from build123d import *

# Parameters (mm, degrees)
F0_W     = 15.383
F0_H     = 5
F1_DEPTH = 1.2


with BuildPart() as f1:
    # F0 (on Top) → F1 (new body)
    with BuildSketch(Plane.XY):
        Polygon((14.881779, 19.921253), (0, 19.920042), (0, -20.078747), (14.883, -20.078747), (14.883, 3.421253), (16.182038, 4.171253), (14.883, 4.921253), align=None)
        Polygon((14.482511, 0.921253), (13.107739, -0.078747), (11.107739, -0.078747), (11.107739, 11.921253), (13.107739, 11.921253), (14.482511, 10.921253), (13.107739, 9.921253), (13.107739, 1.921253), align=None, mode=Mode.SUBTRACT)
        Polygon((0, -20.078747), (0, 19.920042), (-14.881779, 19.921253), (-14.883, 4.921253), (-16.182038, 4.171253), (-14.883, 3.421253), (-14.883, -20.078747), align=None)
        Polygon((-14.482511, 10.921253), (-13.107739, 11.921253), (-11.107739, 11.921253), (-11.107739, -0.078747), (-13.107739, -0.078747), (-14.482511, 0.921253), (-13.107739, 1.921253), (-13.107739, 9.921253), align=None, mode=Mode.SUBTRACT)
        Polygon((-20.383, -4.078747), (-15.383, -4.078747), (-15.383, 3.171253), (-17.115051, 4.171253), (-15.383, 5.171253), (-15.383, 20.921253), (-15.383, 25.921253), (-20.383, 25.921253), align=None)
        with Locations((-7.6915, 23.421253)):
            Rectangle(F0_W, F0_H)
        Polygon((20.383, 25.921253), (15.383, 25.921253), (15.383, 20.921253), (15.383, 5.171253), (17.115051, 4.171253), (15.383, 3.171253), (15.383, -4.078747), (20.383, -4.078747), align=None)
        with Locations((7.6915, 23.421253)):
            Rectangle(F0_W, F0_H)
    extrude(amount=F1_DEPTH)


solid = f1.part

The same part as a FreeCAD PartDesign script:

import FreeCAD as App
import Part
import Sketcher
from FreeCAD import Vector
Q = App.Units.Quantity


def add_polygon(sketch, points):
    """Adds a closed chain of lines whose ends are joined by coincident constraints."""
    first, n = sketch.GeometryCount, len(points)
    for a, b in zip(points, points[1:] + points[:1]):
        sketch.addGeometry(Part.LineSegment(App.Vector(*a, 0), App.Vector(*b, 0)), False)
    for i in range(n):
        sketch.addConstraint(Sketcher.Constraint("Coincident", first + i, 2, first + (i + 1) % n, 1))

doc = App.newDocument("Part")
body = doc.addObject("PartDesign::Body", "Body")
body.AllowCompound = True

sketch1 = body.newObject("Sketcher::SketchObject", "Sketch")
sketch1.AttachmentSupport = (doc.getObject("XY_Plane"), [""])
sketch1.MapMode = "FlatFace"
add_polygon(sketch1, [(14.9, 19.9), (0, 19.9), (-14.9, 19.9), (-14.9, 4.9), (-16.2, 4.2), (-14.9, 3.4), (-14.9, -20.1), (14.9, -20.1), (14.9, 3.4), (16.2, 4.2), (14.9, 4.9)])
add_polygon(sketch1, [(-13.1, 9.9), (-14.5, 10.9), (-13.1, 11.9), (-11.1, 11.9), (-11.1, -0.1), (-13.1, -0.1), (-14.5, 0.9), (-13.1, 1.9)])
add_polygon(sketch1, [(13.1, 1.9), (14.5, 0.9), (13.1, -0.1), (11.1, -0.1), (11.1, 11.9), (13.1, 11.9), (14.5, 10.9), (13.1, 9.9)])
add_polygon(sketch1, [(-20.4, -4.1), (-15.4, -4.1), (-15.4, 3.2), (-17.1, 4.2), (-15.4, 5.2), (-15.4, 20.9), (15.4, 20.9), (15.4, 5.2), (17.1, 4.2), (15.4, 3.2), (15.4, -4.1), (20.4, -4.1), (20.4, 25.9), (-20.4, 25.9)])
sketch1.addConstraint(Sketcher.Constraint("Vertical", 5))
sketch1.addConstraint(Sketcher.Constraint("Horizontal", 6))
sketch1.addConstraint(Sketcher.Constraint("Vertical", 7))
sketch1.addConstraint(Sketcher.Constraint("Horizontal", 13))
sketch1.addConstraint(Sketcher.Constraint("Vertical", 14))
sketch1.addConstraint(Sketcher.Constraint("Horizontal", 15))
sketch1.addConstraint(Sketcher.Constraint("Vertical", 18))
sketch1.addConstraint(Sketcher.Constraint("Horizontal", 21))
sketch1.addConstraint(Sketcher.Constraint("Vertical", 22))
sketch1.addConstraint(Sketcher.Constraint("Horizontal", 23))
sketch1.addConstraint(Sketcher.Constraint("Vertical", 26))
sketch1.addConstraint(Sketcher.Constraint("Horizontal", 27))
sketch1.addConstraint(Sketcher.Constraint("Vertical", 28))
sketch1.addConstraint(Sketcher.Constraint("Vertical", 31))
sketch1.addConstraint(Sketcher.Constraint("Horizontal", 32))
sketch1.addConstraint(Sketcher.Constraint("Vertical", 33))
sketch1.addConstraint(Sketcher.Constraint("Vertical", 36))
sketch1.addConstraint(Sketcher.Constraint("Horizontal", 37))
sketch1.addConstraint(Sketcher.Constraint("Vertical", 38))
sketch1.addConstraint(Sketcher.Constraint("Horizontal", 39))
sketch1.addConstraint(Sketcher.Constraint("Vertical", 40))
sketch1.addConstraint(Sketcher.Constraint("Symmetric", 4, 2, 7, 2, -2))
sketch1.addConstraint(Sketcher.Constraint("Symmetric", 3, 2, 8, 2, -2))
sketch1.addConstraint(Sketcher.Constraint("Symmetric", 2, 2, 9, 2, -2))
sketch1.addConstraint(Sketcher.Constraint("Symmetric", 1, 2, 10, 2, -2))
sketch1.addConstraint(Sketcher.Constraint("Symmetric", 16, 2, 19, 2, -2))
sketch1.addConstraint(Sketcher.Constraint("Symmetric", 15, 2, 20, 2, -2))
sketch1.addConstraint(Sketcher.Constraint("Symmetric", 13, 2, 22, 2, -2))
sketch1.addConstraint(Sketcher.Constraint("Symmetric", 11, 2, 24, 2, -2))
sketch1.addConstraint(Sketcher.Constraint("Symmetric", 18, 2, 25, 2, -2))
sketch1.addConstraint(Sketcher.Constraint("Symmetric", 30, 2, 33, 2, -2))
sketch1.addConstraint(Sketcher.Constraint("Symmetric", 29, 2, 34, 2, -2))
sketch1.addConstraint(Sketcher.Constraint("Symmetric", 28, 2, 35, 2, -2))
sketch1.addConstraint(Sketcher.Constraint("Symmetric", 37, 2, 40, 2, -2))
sketch1.addConstraint(Sketcher.Constraint("PointOnObject", 0, 2, -2))
sketch1.addConstraint(Sketcher.Constraint("Perpendicular", 1, 2))
sketch1.addConstraint(Sketcher.Constraint("Parallel", 3, 8))
sketch1.addConstraint(Sketcher.Constraint("Parallel", 11, 16))
sketch1.addConstraint(Sketcher.Constraint("Parallel", 12, 17))
sketch1.addConstraint(Sketcher.Constraint("Parallel", 16, 19))
sketch1.addConstraint(Sketcher.Constraint("Parallel", 17, 20))
sketch1.addConstraint(Sketcher.Constraint("Parallel", 19, 24))
sketch1.addConstraint(Sketcher.Constraint("Parallel", 9, 29))
sketch1.addConstraint(Sketcher.Constraint("Parallel", 8, 30))
sketch1.addConstraint(Sketcher.Constraint("Horizontal", 8, 2, 29, 2))
sketch1.addConstraint(Sketcher.Constraint("Vertical", 2, 2, 4, 2))
sketch1.addConstraint(Sketcher.Constraint("Vertical", 12, 2, 15, 2))
sketch1.addConstraint(Sketcher.Constraint("Vertical", 11, 2, 16, 2))
sketch1.addConstraint(Sketcher.Constraint("Vertical", 15, 2, 17, 2))
sketch1.addConstraint(Sketcher.Constraint("Vertical", 28, 2, 30, 2))
sketch1.addConstraint(Sketcher.Constraint("DistanceX", 13, 1, 13, 2, 2.0))
sketch1.addConstraint(Sketcher.Constraint("DistanceX", 27, 1, 27, 2, 5.0))
sketch1.addConstraint(Sketcher.Constraint("DistanceY", 14, 2, 14, 1, 12.0))
sketch1.addConstraint(Sketcher.Constraint("DistanceY", 18, 1, 18, 2, 8.0))
sketch1.addConstraint(Sketcher.Constraint("DistanceY", 38, 1, 38, 2, 30.0))
sketch1.addConstraint(Sketcher.Constraint("Angle", 3, Q("-149.999998 deg")))
sketch1.addConstraint(Sketcher.Constraint("Distance", 2, 15.0))
sketch1.addConstraint(Sketcher.Constraint("Distance", 29, 2.0))
sketch1.addConstraint(Sketcher.Constraint("DistanceY", 5, 2, 5, 1, 23.5))
sketch1.addConstraint(Sketcher.Constraint("DistanceY", 5, 2, 2, 2, 25.0))
sketch1.addConstraint(Sketcher.Constraint("DistanceY", 2, 2, 11, 2, 6.0))
sketch1.addConstraint(Sketcher.Constraint("DistanceY", 27, 2, 15, 2, 4.0))
sketch1.addConstraint(Sketcher.Constraint("DistanceY", 1, 2, 31, 2, 1.0))
sketch1.addConstraint(Sketcher.Constraint("Distance", 11, 1.699999))
sketch1.addConstraint(Sketcher.Constraint("DistanceX", 27, 2, 4, 2, 0.5))
sketch1.addConstraint(Sketcher.Constraint("DistanceX", 6, 1, 6, 2, 29.766))
sketch1.addConstraint(Sketcher.Constraint("DistanceX", 3, 2, 12, 2, 3.074299))
sketch1.addConstraint(Sketcher.Constraint("Distance", 0, 14.881779))
sketch1.addConstraint(Sketcher.Constraint("DistanceY", -1, 1, 0, 2, 19.920042))
pad1 = body.newObject("PartDesign::Pad", "Pad")
pad1.Profile = sketch1
pad1.Length = 1.2

doc.recompute()
